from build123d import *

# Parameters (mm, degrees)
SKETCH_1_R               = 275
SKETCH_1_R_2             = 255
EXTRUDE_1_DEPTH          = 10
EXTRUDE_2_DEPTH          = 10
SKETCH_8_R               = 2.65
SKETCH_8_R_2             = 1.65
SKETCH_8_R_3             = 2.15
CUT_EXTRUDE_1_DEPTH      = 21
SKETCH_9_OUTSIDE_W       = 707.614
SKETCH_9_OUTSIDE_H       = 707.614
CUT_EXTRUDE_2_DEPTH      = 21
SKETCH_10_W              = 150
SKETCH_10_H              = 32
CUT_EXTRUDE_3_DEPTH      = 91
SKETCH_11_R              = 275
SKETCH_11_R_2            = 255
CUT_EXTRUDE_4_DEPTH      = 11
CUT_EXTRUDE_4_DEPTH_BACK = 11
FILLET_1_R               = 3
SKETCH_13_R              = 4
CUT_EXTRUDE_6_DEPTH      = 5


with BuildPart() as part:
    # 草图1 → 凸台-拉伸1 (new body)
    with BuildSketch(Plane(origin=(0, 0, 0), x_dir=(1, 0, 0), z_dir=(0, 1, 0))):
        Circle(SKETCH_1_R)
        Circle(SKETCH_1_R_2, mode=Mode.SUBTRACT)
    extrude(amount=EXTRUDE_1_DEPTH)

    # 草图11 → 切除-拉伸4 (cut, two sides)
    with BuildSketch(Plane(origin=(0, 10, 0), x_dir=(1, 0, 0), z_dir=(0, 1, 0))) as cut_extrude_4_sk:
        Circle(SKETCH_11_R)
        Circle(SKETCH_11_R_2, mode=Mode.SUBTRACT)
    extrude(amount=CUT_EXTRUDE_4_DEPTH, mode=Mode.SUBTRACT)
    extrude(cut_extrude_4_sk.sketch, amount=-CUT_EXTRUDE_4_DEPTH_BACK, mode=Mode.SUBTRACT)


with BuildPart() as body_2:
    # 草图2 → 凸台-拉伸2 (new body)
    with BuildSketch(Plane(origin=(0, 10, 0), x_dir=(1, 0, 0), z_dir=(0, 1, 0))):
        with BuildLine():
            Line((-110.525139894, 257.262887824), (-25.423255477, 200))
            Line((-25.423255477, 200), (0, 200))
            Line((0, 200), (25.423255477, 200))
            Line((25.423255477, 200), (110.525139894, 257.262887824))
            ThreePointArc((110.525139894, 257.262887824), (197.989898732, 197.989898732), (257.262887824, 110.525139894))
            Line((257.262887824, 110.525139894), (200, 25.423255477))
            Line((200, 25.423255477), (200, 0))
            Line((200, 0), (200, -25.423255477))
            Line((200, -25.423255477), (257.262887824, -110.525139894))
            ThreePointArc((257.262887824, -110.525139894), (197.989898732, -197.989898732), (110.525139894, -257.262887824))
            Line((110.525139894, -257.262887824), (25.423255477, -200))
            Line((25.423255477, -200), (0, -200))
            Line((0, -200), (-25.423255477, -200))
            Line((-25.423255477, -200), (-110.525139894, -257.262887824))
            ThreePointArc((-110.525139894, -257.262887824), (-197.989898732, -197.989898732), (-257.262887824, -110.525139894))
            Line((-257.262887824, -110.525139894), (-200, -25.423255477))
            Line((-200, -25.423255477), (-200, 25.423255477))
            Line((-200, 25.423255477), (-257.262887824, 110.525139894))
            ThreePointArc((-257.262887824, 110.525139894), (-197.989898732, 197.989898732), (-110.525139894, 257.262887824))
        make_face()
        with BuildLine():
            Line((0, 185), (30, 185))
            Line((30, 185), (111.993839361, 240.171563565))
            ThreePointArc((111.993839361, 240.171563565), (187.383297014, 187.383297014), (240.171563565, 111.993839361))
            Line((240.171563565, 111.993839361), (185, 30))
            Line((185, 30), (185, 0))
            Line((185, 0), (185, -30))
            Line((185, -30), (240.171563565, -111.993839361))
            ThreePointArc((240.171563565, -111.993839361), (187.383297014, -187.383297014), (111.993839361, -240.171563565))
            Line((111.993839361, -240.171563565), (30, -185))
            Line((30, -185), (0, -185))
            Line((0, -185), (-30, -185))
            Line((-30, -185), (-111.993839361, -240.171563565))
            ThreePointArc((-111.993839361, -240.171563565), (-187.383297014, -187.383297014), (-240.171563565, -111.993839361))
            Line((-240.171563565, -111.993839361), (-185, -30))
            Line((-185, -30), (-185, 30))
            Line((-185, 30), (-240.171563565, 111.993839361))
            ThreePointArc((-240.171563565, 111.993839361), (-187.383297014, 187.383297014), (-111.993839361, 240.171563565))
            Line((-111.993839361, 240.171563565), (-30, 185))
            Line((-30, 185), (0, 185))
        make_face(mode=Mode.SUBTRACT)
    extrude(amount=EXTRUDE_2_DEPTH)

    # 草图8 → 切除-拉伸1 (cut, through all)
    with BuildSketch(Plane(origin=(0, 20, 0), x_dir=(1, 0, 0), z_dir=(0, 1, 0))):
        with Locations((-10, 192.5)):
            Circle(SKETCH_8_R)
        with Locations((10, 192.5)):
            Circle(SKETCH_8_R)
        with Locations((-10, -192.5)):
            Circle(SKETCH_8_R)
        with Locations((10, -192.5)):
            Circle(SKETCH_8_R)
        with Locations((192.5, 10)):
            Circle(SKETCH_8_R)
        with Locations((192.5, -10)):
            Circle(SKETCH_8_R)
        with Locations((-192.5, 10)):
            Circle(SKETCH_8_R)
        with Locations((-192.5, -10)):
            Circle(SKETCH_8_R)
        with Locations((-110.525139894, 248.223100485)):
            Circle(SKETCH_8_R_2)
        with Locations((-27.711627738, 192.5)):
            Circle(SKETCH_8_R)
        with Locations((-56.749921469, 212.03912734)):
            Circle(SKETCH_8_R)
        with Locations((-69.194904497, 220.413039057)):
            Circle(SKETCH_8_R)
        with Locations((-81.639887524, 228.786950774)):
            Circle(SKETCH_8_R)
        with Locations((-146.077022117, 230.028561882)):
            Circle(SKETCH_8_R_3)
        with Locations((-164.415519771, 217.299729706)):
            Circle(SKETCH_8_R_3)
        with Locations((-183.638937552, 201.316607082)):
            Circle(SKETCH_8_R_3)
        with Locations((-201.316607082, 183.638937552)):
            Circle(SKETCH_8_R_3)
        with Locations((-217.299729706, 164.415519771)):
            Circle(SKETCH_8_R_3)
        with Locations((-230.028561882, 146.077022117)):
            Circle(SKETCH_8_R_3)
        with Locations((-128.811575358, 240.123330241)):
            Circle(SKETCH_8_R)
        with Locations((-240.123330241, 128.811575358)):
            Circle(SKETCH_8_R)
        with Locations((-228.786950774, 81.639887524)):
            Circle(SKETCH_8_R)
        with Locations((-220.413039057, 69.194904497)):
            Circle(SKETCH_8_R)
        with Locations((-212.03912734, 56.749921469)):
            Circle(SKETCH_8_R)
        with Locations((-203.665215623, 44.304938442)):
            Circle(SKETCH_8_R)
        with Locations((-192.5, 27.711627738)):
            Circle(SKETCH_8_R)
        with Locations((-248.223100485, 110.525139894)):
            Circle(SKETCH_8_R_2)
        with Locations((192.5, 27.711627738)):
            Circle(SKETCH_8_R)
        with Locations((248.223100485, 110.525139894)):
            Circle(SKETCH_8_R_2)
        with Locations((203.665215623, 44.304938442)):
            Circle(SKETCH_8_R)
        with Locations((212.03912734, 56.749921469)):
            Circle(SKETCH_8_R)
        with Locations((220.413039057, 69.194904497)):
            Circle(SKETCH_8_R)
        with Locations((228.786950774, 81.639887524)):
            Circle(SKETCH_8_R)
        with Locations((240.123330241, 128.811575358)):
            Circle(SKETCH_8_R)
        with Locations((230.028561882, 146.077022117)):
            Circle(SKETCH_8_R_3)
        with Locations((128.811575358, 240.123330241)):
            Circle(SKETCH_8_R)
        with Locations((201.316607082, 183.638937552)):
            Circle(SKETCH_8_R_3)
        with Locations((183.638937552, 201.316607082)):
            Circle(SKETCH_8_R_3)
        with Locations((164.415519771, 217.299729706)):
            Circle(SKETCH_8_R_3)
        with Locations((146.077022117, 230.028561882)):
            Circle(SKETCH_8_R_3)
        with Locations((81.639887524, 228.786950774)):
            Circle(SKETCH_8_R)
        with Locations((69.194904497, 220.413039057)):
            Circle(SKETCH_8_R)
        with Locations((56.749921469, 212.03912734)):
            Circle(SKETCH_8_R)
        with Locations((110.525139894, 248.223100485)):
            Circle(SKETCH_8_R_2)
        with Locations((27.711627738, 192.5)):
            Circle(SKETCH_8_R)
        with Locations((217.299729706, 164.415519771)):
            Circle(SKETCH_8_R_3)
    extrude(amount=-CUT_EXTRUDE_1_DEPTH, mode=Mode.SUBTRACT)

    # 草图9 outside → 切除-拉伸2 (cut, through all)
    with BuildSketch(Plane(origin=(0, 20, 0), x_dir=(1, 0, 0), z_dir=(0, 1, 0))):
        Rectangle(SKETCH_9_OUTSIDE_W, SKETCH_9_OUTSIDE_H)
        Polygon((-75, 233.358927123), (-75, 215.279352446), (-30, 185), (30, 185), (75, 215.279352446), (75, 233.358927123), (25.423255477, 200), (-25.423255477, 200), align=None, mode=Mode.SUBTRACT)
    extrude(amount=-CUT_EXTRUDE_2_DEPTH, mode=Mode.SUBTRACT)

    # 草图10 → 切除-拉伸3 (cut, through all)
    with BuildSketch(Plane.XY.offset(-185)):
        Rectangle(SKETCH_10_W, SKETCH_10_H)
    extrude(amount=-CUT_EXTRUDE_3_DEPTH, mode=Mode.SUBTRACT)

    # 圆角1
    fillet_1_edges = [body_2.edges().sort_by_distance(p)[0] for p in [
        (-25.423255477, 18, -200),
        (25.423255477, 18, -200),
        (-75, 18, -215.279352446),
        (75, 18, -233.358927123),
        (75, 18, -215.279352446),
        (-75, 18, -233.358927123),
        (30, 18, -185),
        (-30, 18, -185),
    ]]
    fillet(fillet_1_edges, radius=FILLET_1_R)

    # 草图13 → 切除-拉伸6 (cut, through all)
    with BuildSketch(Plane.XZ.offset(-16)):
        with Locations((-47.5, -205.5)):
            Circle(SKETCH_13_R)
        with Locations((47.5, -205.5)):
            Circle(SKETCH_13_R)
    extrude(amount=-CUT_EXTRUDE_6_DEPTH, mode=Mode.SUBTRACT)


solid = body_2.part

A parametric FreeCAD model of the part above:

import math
import FreeCAD as App
import Part
import Sketcher

V = App.Vector


def edges_at(feature, points):
    """Names of the edges that pass closest to the given points."""
    edges = feature.Shape.Edges
    near = lambda p: min(range(len(edges)), key=lambda i: edges[i].distToShape(Part.Vertex(*p))[0])
    return sorted({f"Edge{near(p) + 1}" for p in points})

doc = App.newDocument("Part")
body = doc.addObject("PartDesign::Body", "Body")

# Sketch on XZ plane
sketch1 = body.newObject("Sketcher::SketchObject", "Sketch")
sketch1.AttachmentSupport = (doc.getObject("XZ_Plane"), [""])
sketch1.MapMode = "FlatFace"
sketch1.addGeometry(Part.Circle(V(0, 0, 0), V(0, 0, 1), 275), False)
sketch1.addGeometry(Part.Circle(V(0, 0, 0), V(0, 0, 1), 255), False)
sketch1.addConstraint(Sketcher.Constraint("Coincident", 0, 3, -1, 1))
sketch1.addConstraint(Sketcher.Constraint("Coincident", 1, 3, -1, 1))
sketch1.addConstraint(Sketcher.Constraint("Diameter", 0, 550.0))
sketch1.addConstraint(Sketcher.Constraint("Diameter", 1, 510.0))
pad1 = body.newObject("PartDesign::Pad", "Pad")
pad1.Profile = sketch1
pad1.Length = 10
pad1.Reversed = True

# Sketch on XZ plane
sketch2 = body.newObject("Sketcher::SketchObject", "Sketch001")
sketch2.AttachmentSupport = (doc.getObject("XZ_Plane"), [""])
sketch2.MapMode = "FlatFace"
sketch2.AttachmentOffset = App.Placement(V(0, 0, -10), App.Rotation())
sketch2.addGeometry(Part.Circle(V(0, 0, 0), V(0, 0, 1), 275), False)
sketch2.addGeometry(Part.Circle(V(0, 0, 0), V(0, 0, 1), 255), False)
sketch2.addConstraint(Sketcher.Constraint("Coincident", 0, 3, -1, 1))
sketch2.addConstraint(Sketcher.Constraint("Coincident", 1, 3, -1, 1))
sketch2.addConstraint(Sketcher.Constraint("Diameter", 0, 550.0))
sketch2.addConstraint(Sketcher.Constraint("Diameter", 1, 510.0))
pocket1 = body.newObject("PartDesign::Pocket", "Pocket")
pocket1.Profile = sketch2
pocket1.Type = "ThroughAll"
pocket1.Midplane = True
body2 = doc.addObject("PartDesign::Body", "Body001")

# Sketch on XZ plane
sketch3 = body2.newObject("Sketcher::SketchObject", "Sketch002")
sketch3.AttachmentSupport = (doc.getObject("XZ_Plane001"), [""])
sketch3.MapMode = "FlatFace"
sketch3.AttachmentOffset = App.Placement(V(0, 0, -10), App.Rotation())
sketch3.addGeometry(Part.LineSegment(V(-25, -200, 0), V(-111, -257, 0)), False)
sketch3.addGeometry(Part.ArcOfCircle(Part.Circle(V(0, 0, 0), V(0, 0, 1), 280), math.radians(-157), math.radians(-113)), False)
sketch3.addGeometry(Part.LineSegment(V(-257, -111, 0), V(-200, -25, 0)), False)
sketch3.addGeometry(Part.LineSegment(V(-200, -25, 0), V(-200, 25, 0)), False)
sketch3.addGeometry(Part.LineSegment(V(-200, 25, 0), V(-257, 111, 0)), False)
sketch3.addGeometry(Part.ArcOfCircle(Part.Circle(V(0, 0, 0), V(0, 0, 1), 280), math.radians(113), math.radians(157)), False)
sketch3.addGeometry(Part.LineSegment(V(-111, 257, 0), V(-25, 200, 0)), False)
sketch3.addGeometry(Part.LineSegment(V(-25, 200, 0), V(25, 200, 0)), False)
sketch3.addGeometry(Part.LineSegment(V(25, 200, 0), V(111, 257, 0)), False)
sketch3.addGeometry(Part.ArcOfCircle(Part.Circle(V(0, 0, 0), V(0, 0, 1), 280), math.radians(23), math.radians(67)), False)
sketch3.addGeometry(Part.LineSegment(V(257, 111, 0), V(200, 25, 0)), False)
sketch3.addGeometry(Part.LineSegment(V(200, 25, 0), V(200, -25, 0)), False)
sketch3.addGeometry(Part.LineSegment(V(200, -25, 0), V(257, -111, 0)), False)
sketch3.addGeometry(Part.ArcOfCircle(Part.Circle(V(0, 0, 0), V(0, 0, 1), 280), math.radians(-67), math.radians(-23)), False)
sketch3.addGeometry(Part.LineSegment(V(111, -257, 0), V(25, -200, 0)), False)
sketch3.addGeometry(Part.LineSegment(V(25, -200, 0), V(-25, -200, 0)), False)
sketch3.addGeometry(Part.LineSegment(V(30, -185, 0), V(112, -240, 0)), False)
sketch3.addGeometry(Part.ArcOfCircle(Part.Circle(V(0, 0, 0), V(0, 0, 1), 265), math.radians(-65), math.radians(-25)), False)
sketch3.addGeometry(Part.LineSegment(V(240, -112, 0), V(185, -30, 0)), False)
sketch3.addGeometry(Part.LineSegment(V(185, -30, 0), V(185, 30, 0)), False)
sketch3.addGeometry(Part.LineSegment(V(185, 30, 0), V(240, 112, 0)), False)
sketch3.addGeometry(Part.ArcOfCircle(Part.Circle(V(0, 0, 0), V(0, 0, 1), 265), math.radians(25), math.radians(65)), False)
sketch3.addGeometry(Part.LineSegment(V(112, 240, 0), V(30, 185, 0)), False)
sketch3.addGeometry(Part.LineSegment(V(30, 185, 0), V(-30, 185, 0)), False)
sketch3.addGeometry(Part.LineSegment(V(-30, 185, 0), V(-112, 240, 0)), False)
sketch3.addGeometry(Part.ArcOfCircle(Part.Circle(V(0, 0, 0), V(0, 0, 1), 265), math.radians(115), math.radians(155)), False)
sketch3.addGeometry(Part.LineSegment(V(-240, 112, 0), V(-185, 30, 0)), False)
sketch3.addGeometry(Part.LineSegment(V(-185, 30, 0), V(-185, -30, 0)), False)
sketch3.addGeometry(Part.LineSegment(V(-185, -30, 0), V(-240, -112, 0)), False)
sketch3.addGeometry(Part.ArcOfCircle(Part.Circle(V(0, 0, 0), V(0, 0, 1), 265), math.radians(-155), math.radians(-115)), False)
sketch3.addGeometry(Part.LineSegment(V(-112, -240, 0), V(-30, -185, 0)), False)
sketch3.addGeometry(Part.LineSegment(V(-30, -185, 0), V(30, -185, 0)), False)
sketch3.addConstraint(Sketcher.Constraint("Coincident", 0, 2, 1, 2))
sketch3.addConstraint(Sketcher.Constraint("Coincident", 1, 1, 2, 1))
sketch3.addConstraint(Sketcher.Constraint("Coincident", 2, 2, 3, 1))
sketch3.addConstraint(Sketcher.Constraint("Coincident", 3, 2, 4, 1))
sketch3.addConstraint(Sketcher.Constraint("Coincident", 4, 2, 5, 2))
sketch3.addConstraint(Sketcher.Constraint("Coincident", 5, 1, 6, 1))
sketch3.addConstraint(Sketcher.Constraint("Coincident", 6, 2, 7, 1))
sketch3.addConstraint(Sketcher.Constraint("Coincident", 7, 2, 8, 1))
sketch3.addConstraint(Sketcher.Constraint("Coincident", 8, 2, 9, 2))
sketch3.addConstraint(Sketcher.Constraint("Coincident", 9, 1, 10, 1))
sketch3.addConstraint(Sketcher.Constraint("Coincident", 10, 2, 11, 1))
sketch3.addConstraint(Sketcher.Constraint("Coincident", 11, 2, 12, 1))
sketch3.addConstraint(Sketcher.Constraint("Coincident", 12, 2, 13, 2))
sketch3.addConstraint(Sketcher.Constraint("Coincident", 13, 1, 14, 1))
sketch3.addConstraint(Sketcher.Constraint("Coincident", 14, 2, 15, 1))
sketch3.addConstraint(Sketcher.Constraint("Coincident", 15, 2, 0, 1))
sketch3.addConstraint(Sketcher.Constraint("Coincident", 16, 2, 17, 1))
sketch3.addConstraint(Sketcher.Constraint("Coincident", 17, 2, 18, 1))
sketch3.addConstraint(Sketcher.Constraint("Coincident", 18, 2, 19, 1))
sketch3.addConstraint(Sketcher.Constraint("Coincident", 19, 2, 20, 1))
sketch3.addConstraint(Sketcher.Constraint("Coincident", 20, 2, 21, 1))
sketch3.addConstraint(Sketcher.Constraint("Coincident", 21, 2, 22, 1))
sketch3.addConstraint(Sketcher.Constraint("Coincident", 22, 2, 23, 1))
sketch3.addConstraint(Sketcher.Constraint("Coincident", 23, 2, 24, 1))
sketch3.addConstraint(Sketcher.Constraint("Coincident", 24, 2, 25, 1))
sketch3.addConstraint(Sketcher.Constraint("Coincident", 25, 2, 26, 1))
sketch3.addConstraint(Sketcher.Constraint("Coincident", 26, 2, 27, 1))
sketch3.addConstraint(Sketcher.Constraint("Coincident", 27, 2, 28, 1))
sketch3.addConstraint(Sketcher.Constraint("Coincident", 28, 2, 29, 1))
sketch3.addConstraint(Sketcher.Constraint("Coincident", 29, 2, 30, 1))
sketch3.addConstraint(Sketcher.Constraint("Coincident", 30, 2, 31, 1))
sketch3.addConstraint(Sketcher.Constraint("Coincident", 31, 2, 16, 1))
sketch3.addConstraint(Sketcher.Constraint("Vertical", 3))
sketch3.addConstraint(Sketcher.Constraint("Horizontal", 7))
sketch3.addConstraint(Sketcher.Constraint("Vertical", 11))
sketch3.addConstraint(Sketcher.Constraint("Horizontal", 15))
sketch3.addConstraint(Sketcher.Constraint("Vertical", 19))
sketch3.addConstraint(Sketcher.Constraint("Horizontal", 23))
sketch3.addConstraint(Sketcher.Constraint("Vertical", 27))
sketch3.addConstraint(Sketcher.Constraint("Horizontal", 31))
sketch3.addConstraint(Sketcher.Constraint("Coincident", 1, 3, -1, 1))
sketch3.addConstraint(Sketcher.Constraint("Coincident", 5, 3, -1, 1))
sketch3.addConstraint(Sketcher.Constraint("Coincident", 9, 3, -1, 1))
sketch3.addConstraint(Sketcher.Constraint("Coincident", 13, 3, -1, 1))
sketch3.addConstraint(Sketcher.Constraint("Coincident", 17, 3, -1, 1))
sketch3.addConstraint(Sketcher.Constraint("Coincident", 21, 3, -1, 1))
sketch3.addConstraint(Sketcher.Constraint("Coincident", 25, 3, -1, 1))
sketch3.addConstraint(Sketcher.Constraint("Coincident", 29, 3, -1, 1))
sketch3.addConstraint(Sketcher.Constraint("Equal", 1, 5))
sketch3.addConstraint(Sketcher.Constraint("Equal", 5, 9))
sketch3.addConstraint(Sketcher.Constraint("Equal", 9, 13))
sketch3.addConstraint(Sketcher.Constraint("Equal", 17, 21))
sketch3.addConstraint(Sketcher.Constraint("Equal", 21, 25))
sketch3.addConstraint(Sketcher.Constraint("Equal", 25, 29))
sketch3.addConstraint(Sketcher.Constraint("Symmetric", 2, 2, 10, 2, -1, 1))
sketch3.addConstraint(Sketcher.Constraint("Symmetric", 6, 2, 14, 2, -1, 1))
sketch3.addConstraint(Sketcher.Constraint("Symmetric", 18, 2, 26, 2, -1, 1))
sketch3.addConstraint(Sketcher.Constraint("Symmetric", 22, 2, 30, 2, -1, 1))
sketch3.addConstraint(Sketcher.Constraint("Perpendicular", 0, 4))
sketch3.addConstraint(Sketcher.Constraint("Perpendicular", 2, 6))
sketch3.addConstraint(Sketcher.Constraint("Perpendicular", 4, 8))
sketch3.addConstraint(Sketcher.Constraint("Perpendicular", 6, 10))
sketch3.addConstraint(Sketcher.Constraint("Perpendicular", 8, 12))
sketch3.addConstraint(Sketcher.Constraint("Perpendicular", 10, 14))
sketch3.addConstraint(Sketcher.Constraint("Parallel", 14, 16))
sketch3.addConstraint(Sketcher.Constraint("Parallel", 12, 18))
sketch3.addConstraint(Sketcher.Constraint("Perpendicular", 16, 20))
sketch3.addConstraint(Sketcher.Constraint("Perpendicular", 18, 22))
sketch3.addConstraint(Sketcher.Constraint("Perpendicular", 20, 24))
sketch3.addConstraint(Sketcher.Constraint("Perpendicular", 22, 26))
sketch3.addConstraint(Sketcher.Constraint("Perpendicular", 24, 28))
sketch3.addConstraint(Sketcher.Constraint("Perpendicular", 26, 30))
sketch3.addConstraint(Sketcher.Constraint("Horizontal", 5, 1, 8, 2))
sketch3.addConstraint(Sketcher.Constraint("Horizontal", 4, 2, 9, 1))
sketch3.addConstraint(Sketcher.Constraint("Horizontal", 3, 2, 10, 2))
sketch3.addConstraint(Sketcher.Constraint("Horizontal", 2, 2, 11, 2))
sketch3.addConstraint(Sketcher.Constraint("Horizontal", 19, 2, 26, 2))
sketch3.addConstraint(Sketcher.Constraint("Horizontal", 18, 2, 27, 2))
sketch3.addConstraint(Sketcher.Constraint("Vertical", 6, 2, 15, 2))
sketch3.addConstraint(Sketcher.Constraint("Vertical", 23, 2, 30, 2))
sketch3.addConstraint(Sketcher.Constraint("Vertical", 22, 2, 31, 2))
sketch3.addConstraint(Sketcher.Constraint("Equal", 15, 3))
sketch3.addConstraint(Sketcher.Constraint("Equal", 31, 19))
sketch3.addConstraint(Sketcher.Constraint("Equal", 0, 2))
sketch3.addConstraint(Sketcher.Constraint("Equal", 16, 18))
sketch3.addConstraint(Sketcher.Constraint("Radius", 1, 280.0))
sketch3.addConstraint(Sketcher.Constraint("Radius", 17, 265.0))
sketch3.addConstraint(Sketcher.Constraint("DistanceX", 23, 2, 23, 1, 60.0))
sketch3.addConstraint(Sketcher.Constraint("DistanceX", 2, 2, -1, 1, 200.0))
sketch3.addConstraint(Sketcher.Constraint("DistanceX", -1, 1, 18, 2, 185.0))
sketch3.addConstraint(Sketcher.Constraint("DistanceX", 7, 1, 7, 2, 50.846511))
sketch3.addConstraint(Sketcher.Constraint("DistanceX", 0, 2, -1, 1, 110.52514))
pad2 = body2.newObject("PartDesign::Pad", "Pad001")
pad2.Profile = sketch3
pad2.Length = 10
pad2.Reversed = True

# Sketch on XZ plane
sketch4 = body2.newObject("Sketcher::SketchObject", "Sketch003")
sketch4.AttachmentSupport = (doc.getObject("XZ_Plane001"), [""])
sketch4.MapMode = "FlatFace"
sketch4.AttachmentOffset = App.Placement(V(0, 0, -20), App.Rotation())
sketch4.addGeometry(Part.Circle(V(-10, -192.5, 0), V(0, 0, 1), 2.6), False)
sketch4.addGeometry(Part.Circle(V(10, -192.5, 0), V(0, 0, 1), 2.6), False)
sketch4.addGeometry(Part.Circle(V(-10, 192.5, 0), V(0, 0, 1), 2.6), False)
sketch4.addGeometry(Part.Circle(V(10, 192.5, 0), V(0, 0, 1), 2.6), False)
sketch4.addGeometry(Part.Circle(V(192.5, -10, 0), V(0, 0, 1), 2.6), False)
sketch4.addGeometry(Part.Circle(V(192.5, 10, 0), V(0, 0, 1), 2.6), False)
sketch4.addGeometry(Part.Circle(V(-192.5, -10, 0), V(0, 0, 1), 2.6), False)
sketch4.addGeometry(Part.Circle(V(-192.5, 10, 0), V(0, 0, 1), 2.6), False)
sketch4.addGeometry(Part.Circle(V(-110.5, -248.2, 0), V(0, 0, 1), 1.6), False)
sketch4.addGeometry(Part.Circle(V(-27.7, -192.5, 0), V(0, 0, 1), 2.6), False)
sketch4.addGeometry(Part.Circle(V(-56.7, -212, 0), V(0, 0, 1), 2.6), False)
sketch4.addGeometry(Part.Circle(V(-69.2, -220.4, 0), V(0, 0, 1), 2.6), False)
sketch4.addGeometry(Part.Circle(V(-81.6, -228.8, 0), V(0, 0, 1), 2.6), False)
sketch4.addGeometry(Part.Circle(V(-146.1, -230, 0), V(0, 0, 1), 2.1), False)
sketch4.addGeometry(Part.Circle(V(-164.4, -217.3, 0), V(0, 0, 1), 2.1), False)
sketch4.addGeometry(Part.Circle(V(-183.6, -201.3, 0), V(0, 0, 1), 2.1), False)
sketch4.addGeometry(Part.Circle(V(-201.3, -183.6, 0), V(0, 0, 1), 2.1), False)
sketch4.addGeometry(Part.Circle(V(-217.3, -164.4, 0), V(0, 0, 1), 2.1), False)
sketch4.addGeometry(Part.Circle(V(-230, -146.1, 0), V(0, 0, 1), 2.1), False)
sketch4.addGeometry(Part.Circle(V(-128.8, -240.1, 0), V(0, 0, 1), 2.6), False)
sketch4.addGeometry(Part.Circle(V(-240.1, -128.8, 0), V(0, 0, 1), 2.6), False)
sketch4.addGeometry(Part.Circle(V(-228.8, -81.6, 0), V(0, 0, 1), 2.6), False)
sketch4.addGeometry(Part.Circle(V(-220.4, -69.2, 0), V(0, 0, 1), 2.6), False)
sketch4.addGeometry(Part.Circle(V(-212, -56.7, 0), V(0, 0, 1), 2.6), False)
sketch4.addGeometry(Part.Circle(V(-203.7, -44.3, 0), V(0, 0, 1), 2.6), False)
sketch4.addGeometry(Part.Circle(V(-192.5, -27.7, 0), V(0, 0, 1), 2.6), False)
sketch4.addGeometry(Part.Circle(V(-248.2, -110.5, 0), V(0, 0, 1), 1.6), False)
sketch4.addGeometry(Part.Circle(V(192.5, -27.7, 0), V(0, 0, 1), 2.6), False)
sketch4.addGeometry(Part.Circle(V(248.2, -110.5, 0), V(0, 0, 1), 1.6), False)
sketch4.addGeometry(Part.Circle(V(203.7, -44.3, 0), V(0, 0, 1), 2.6), False)
sketch4.addGeometry(Part.Circle(V(212, -56.7, 0), V(0, 0, 1), 2.6), False)
sketch4.addGeometry(Part.Circle(V(220.4, -69.2, 0), V(0, 0, 1), 2.6), False)
sketch4.addGeometry(Part.Circle(V(228.8, -81.6, 0), V(0, 0, 1), 2.6), False)
sketch4.addGeometry(Part.Circle(V(240.1, -128.8, 0), V(0, 0, 1), 2.6), False)
sketch4.addGeometry(Part.Circle(V(230, -146.1, 0), V(0, 0, 1), 2.1), False)
sketch4.addGeometry(Part.Circle(V(128.8, -240.1, 0), V(0, 0, 1), 2.6), False)
sketch4.addGeometry(Part.Circle(V(201.3, -183.6, 0), V(0, 0, 1), 2.1), False)
sketch4.addGeometry(Part.Circle(V(183.6, -201.3, 0), V(0, 0, 1), 2.1), False)
sketch4.addGeometry(Part.Circle(V(164.4, -217.3, 0), V(0, 0, 1), 2.1), False)
sketch4.addGeometry(Part.Circle(V(146.1, -230, 0), V(0, 0, 1), 2.1), False)
sketch4.addGeometry(Part.Circle(V(81.6, -228.8, 0), V(0, 0, 1), 2.6), False)
sketch4.addGeometry(Part.Circle(V(69.2, -220.4, 0), V(0, 0, 1), 2.6), False)
sketch4.addGeometry(Part.Circle(V(56.7, -212, 0), V(0, 0, 1), 2.6), False)
sketch4.addGeometry(Part.Circle(V(110.5, -248.2, 0), V(0, 0, 1), 1.6), False)
sketch4.addGeometry(Part.Circle(V(27.7, -192.5, 0), V(0, 0, 1), 2.6), False)
sketch4.addGeometry(Part.Circle(V(217.3, -164.4, 0), V(0, 0, 1), 2.1), False)
sketch4.addConstraint(Sketcher.Constraint("Equal", 0, 1))
sketch4.addConstraint(Sketcher.Constraint("Equal", 1, 2))
sketch4.addConstraint(Sketcher.Constraint("Equal", 2, 3))
sketch4.addConstraint(Sketcher.Constraint("Equal", 3, 4))
sketch4.addConstraint(Sketcher.Constraint("Equal", 4, 5))
sketch4.addConstraint(Sketcher.Constraint("Equal", 5, 6))
sketch4.addConstraint(Sketcher.Constraint("Equal", 6, 7))
sketch4.addConstraint(Sketcher.Constraint("Equal", 7, 9))
sketch4.addConstraint(Sketcher.Constraint("Equal", 9, 10))
sketch4.addConstraint(Sketcher.Constraint("Equal", 10, 11))
sketch4.addConstraint(Sketcher.Constraint("Equal", 11, 12))
sketch4.addConstraint(Sketcher.Constraint("Equal", 13, 14))
sketch4.addConstraint(Sketcher.Constraint("Equal", 14, 15))
sketch4.addConstraint(Sketcher.Constraint("Equal", 15, 16))
sketch4.addConstraint(Sketcher.Constraint("Equal", 16, 17))
sketch4.addConstraint(Sketcher.Constraint("Equal", 17, 18))
sketch4.addConstraint(Sketcher.Constraint("Equal", 12, 19))
sketch4.addConstraint(Sketcher.Constraint("Equal", 19, 20))
sketch4.addConstraint(Sketcher.Constraint("Equal", 20, 21))
sketch4.addConstraint(Sketcher.Constraint("Equal", 21, 22))
sketch4.addConstraint(Sketcher.Constraint("Equal", 22, 23))
sketch4.addConstraint(Sketcher.Constraint("Equal", 23, 24))
sketch4.addConstraint(Sketcher.Constraint("Equal", 24, 25))
sketch4.addConstraint(Sketcher.Constraint("Equal", 8, 26))
sketch4.addConstraint(Sketcher.Constraint("Equal", 25, 27))
sketch4.addConstraint(Sketcher.Constraint("Equal", 26, 28))
sketch4.addConstraint(Sketcher.Constraint("Equal", 27, 29))
sketch4.addConstraint(Sketcher.Constraint("Equal", 29, 30))
sketch4.addConstraint(Sketcher.Constraint("Equal", 30, 31))
sketch4.addConstraint(Sketcher.Constraint("Equal", 31, 32))
sketch4.addConstraint(Sketcher.Constraint("Equal", 32, 33))
sketch4.addConstraint(Sketcher.Constraint("Equal", 18, 34))
sketch4.addConstraint(Sketcher.Constraint("Equal", 33, 35))
sketch4.addConstraint(Sketcher.Constraint("Equal", 34, 36))
sketch4.addConstraint(Sketcher.Constraint("Equal", 36, 37))
sketch4.addConstraint(Sketcher.Constraint("Equal", 37, 38))
sketch4.addConstraint(Sketcher.Constraint("Equal", 38, 39))
sketch4.addConstraint(Sketcher.Constraint("Equal", 35, 40))
sketch4.addConstraint(Sketcher.Constraint("Equal", 40, 41))
sketch4.addConstraint(Sketcher.Constraint("Equal", 41, 42))
sketch4.addConstraint(Sketcher.Constraint("Equal", 28, 43))
sketch4.addConstraint(Sketcher.Constraint("Equal", 42, 44))
sketch4.addConstraint(Sketcher.Constraint("Equal", 39, 45))
sketch4.addConstraint(Sketcher.Constraint("Symmetric", 1, 3, 2, 3, -1, 1))
sketch4.addConstraint(Sketcher.Constraint("Symmetric", 0, 3, 3, 3, -1, 1))
sketch4.addConstraint(Sketcher.Constraint("Symmetric", 5, 3, 6, 3, -1, 1))
sketch4.addConstraint(Sketcher.Constraint("Symmetric", 4, 3, 7, 3, -1, 1))
sketch4.addConstraint(Sketcher.Constraint("Symmetric", 0, 3, 1, 3, -2))
sketch4.addConstraint(Sketcher.Constraint("Symmetric", 4, 3, 6, 3, -2))
sketch4.addConstraint(Sketcher.Constraint("Symmetric", 25, 3, 27, 3, -2))
sketch4.addConstraint(Sketcher.Constraint("Symmetric", 26, 3, 28, 3, -2))
sketch4.addConstraint(Sketcher.Constraint("Symmetric", 24, 3, 29, 3, -2))
sketch4.addConstraint(Sketcher.Constraint("Symmetric", 23, 3, 30, 3, -2))
sketch4.addConstraint(Sketcher.Constraint("Symmetric", 22, 3, 31, 3, -2))
sketch4.addConstraint(Sketcher.Constraint("Symmetric", 21, 3, 32, 3, -2))
sketch4.addConstraint(Sketcher.Constraint("Symmetric", 20, 3, 33, 3, -2))
sketch4.addConstraint(Sketcher.Constraint("Symmetric", 18, 3, 34, 3, -2))
sketch4.addConstraint(Sketcher.Constraint("Symmetric", 19, 3, 35, 3, -2))
sketch4.addConstraint(Sketcher.Constraint("Symmetric", 16, 3, 36, 3, -2))
sketch4.addConstraint(Sketcher.Constraint("Symmetric", 15, 3, 37, 3, -2))
sketch4.addConstraint(Sketcher.Constraint("Symmetric", 14, 3, 38, 3, -2))
sketch4.addConstraint(Sketcher.Constraint("Symmetric", 13, 3, 39, 3, -2))
sketch4.addConstraint(Sketcher.Constraint("Symmetric", 12, 3, 40, 3, -2))
sketch4.addConstraint(Sketcher.Constraint("Symmetric", 11, 3, 41, 3, -2))
sketch4.addConstraint(Sketcher.Constraint("Symmetric", 10, 3, 42, 3, -2))
sketch4.addConstraint(Sketcher.Constraint("Symmetric", 8, 3, 43, 3, -2))
sketch4.addConstraint(Sketcher.Constraint("Symmetric", 9, 3, 44, 3, -2))
sketch4.addConstraint(Sketcher.Constraint("Symmetric", 17, 3, 45, 3, -2))
sketch4.addConstraint(Sketcher.Constraint("Horizontal", 1, 3, 9, 3))
sketch4.addConstraint(Sketcher.Constraint("Vertical", 7, 3, 25, 3))
sketch4.addConstraint(Sketcher.Constraint("Diameter", 0, 5.3))
sketch4.addConstraint(Sketcher.Constraint("Diameter", 8, 3.3))
sketch4.addConstraint(Sketcher.Constraint("Diameter", 13, 4.3))
sketch4.addConstraint(Sketcher.Constraint("DistanceX", 0, 3, -1, 1, 10.0))
sketch4.addConstraint(Sketcher.Constraint("DistanceY", 4, 3, -1, 1, 10.0))
sketch4.addConstraint(Sketcher.Constraint("DistanceY", 0, 3, 2, 3, 385.0))
sketch4.addConstraint(Sketcher.Constraint("DistanceX", 6, 3, 4, 3, 385.0))
sketch4.addConstraint(Sketcher.Constraint("DistanceY", 8, 3, -1, 1, 248.2231))
sketch4.addConstraint(Sketcher.Constraint("DistanceX", 26, 3, -1, 1, 248.2231))
sketch4.addConstraint(Sketcher.Constraint("DistanceX", 13, 3, 10, 3, 89.327101))
sketch4.addConstraint(Sketcher.Constraint("DistanceX", 14, 3, 10, 3, 107.665598))
sketch4.addConstraint(Sketcher.Constraint("DistanceY", 19, 3, 14, 3, 22.823601))
sketch4.addConstraint(Sketcher.Constraint("DistanceX", 20, 3, 17, 3, 22.823601))
sketch4.addConstraint(Sketcher.Constraint("DistanceY", 28, 3, 29, 3, 66.220201))
sketch4.addConstraint(Sketcher.Constraint("DistanceY", 34, 3, 30, 3, 89.327101))
sketch4.addConstraint(Sketcher.Constraint("DistanceX", 8, 3, -1, 1, 110.52514))
sketch4.addConstraint(Sketcher.Constraint("DistanceX", 10, 3, -1, 1, 56.749921))
sketch4.addConstraint(Sketcher.Constraint("DistanceY", 11, 3, -1, 1, 220.413039))
sketch4.addConstraint(Sketcher.Constraint("DistanceY", 12, 3, -1, 1, 228.786951))
sketch4.addConstraint(Sketcher.Constraint("DistanceY", 13, 3, -1, 1, 230.028562))
sketch4.addConstraint(Sketcher.Constraint("DistanceY", 14, 3, -1, 1, 217.29973))
sketch4.addConstraint(Sketcher.Constraint("DistanceX", 17, 3, -1, 1, 217.29973))
sketch4.addConstraint(Sketcher.Constraint("DistanceY", 17, 3, -1, 1, 164.41552))
sketch4.addConstraint(Sketcher.Constraint("DistanceX", 18, 3, -1, 1, 230.028562))
sketch4.addConstraint(Sketcher.Constraint("DistanceX", 21, 3, -1, 1, 228.786951))
sketch4.addConstraint(Sketcher.Constraint("DistanceX", 22, 3, -1, 1, 220.413039))
sketch4.addConstraint(Sketcher.Constraint("DistanceY", 23, 3, -1, 1, 56.749921))
sketch4.addConstraint(Sketcher.Constraint("DistanceY", 24, 3, -1, 1, 44.304938))
sketch4.addConstraint(Sketcher.Constraint("DistanceY", 11, 3, 10, 3, 8.373912))
sketch4.addConstraint(Sketcher.Constraint("DistanceX", 12, 3, 9, 3, 53.92826))
sketch4.addConstraint(Sketcher.Constraint("DistanceX", 15, 3, 12, 3, 101.99905))
sketch4.addConstraint(Sketcher.Constraint("DistanceY", 11, 3, 15, 3, 19.096432))
sketch4.addConstraint(Sketcher.Constraint("DistanceX", 16, 3, 15, 3, 17.67767))
sketch4.addConstraint(Sketcher.Constraint("DistanceY", 15, 3, 16, 3, 17.67767))
sketch4.addConstraint(Sketcher.Constraint("DistanceX", 19, 3, 11, 3, 59.616671))
sketch4.addConstraint(Sketcher.Constraint("DistanceY", 15, 3, 20, 3, 72.505032))
sketch4.addConstraint(Sketcher.Constraint("DistanceY", 20, 3, 22, 3, 59.616671))
sketch4.addConstraint(Sketcher.Constraint("DistanceX", 22, 3, 23, 3, 8.373912))
sketch4.addConstraint(Sketcher.Constraint("DistanceX", 23, 3, 24, 3, 8.373912))
sketch4.addConstraint(Sketcher.Constraint("DistanceY", 21, 3, 24, 3, 37.334949))
sketch4.addConstraint(Sketcher.Constraint("DistanceY", 24, 3, 25, 3, 16.593311))
sketch4.addConstraint(Sketcher.Constraint("DistanceX", 35, 3, 36, 3, 72.505032))
sketch4.addConstraint(Sketcher.Constraint("DistanceX", 9, 3, -1, 1, 27.711628))
pocket2 = body2.newObject("PartDesign::Pocket", "Pocket001")
pocket2.Profile = sketch4
pocket2.Type = "ThroughAll"
pocket2.Reversed = True

# Sketch on XZ plane
sketch5 = body2.newObject("Sketcher::SketchObject", "Sketch004")
sketch5.AttachmentSupport = (doc.getObject("XZ_Plane001"), [""])
sketch5.MapMode = "FlatFace"
sketch5.AttachmentOffset = App.Placement(V(0, 0, -20), App.Rotation())
sketch5.addGeometry(Part.LineSegment(V(-354, -354, 0), V(-354, 354, 0)), False)
sketch5.addGeometry(Part.LineSegment(V(-354, 354, 0), V(354, 354, 0)), False)
sketch5.addGeometry(Part.LineSegment(V(354, 354, 0), V(354, -354, 0)), False)
sketch5.addGeometry(Part.LineSegment(V(354, -354, 0), V(-354, -354, 0)), False)
sketch5.addGeometry(Part.LineSegment(V(-75, -215, 0), V(-75, -233, 0)), False)
sketch5.addGeometry(Part.LineSegment(V(-75, -233, 0), V(-25, -200, 0)), False)
sketch5.addGeometry(Part.LineSegment(V(-25, -200, 0), V(25, -200, 0)), False)
sketch5.addGeometry(Part.LineSegment(V(25, -200, 0), V(75, -233, 0)), False)
sketch5.addGeometry(Part.LineSegment(V(75, -233, 0), V(75, -215, 0)), False)
sketch5.addGeometry(Part.LineSegment(V(75, -215, 0), V(30, -185, 0)), False)
sketch5.addGeometry(Part.LineSegment(V(30, -185, 0), V(-30, -185, 0)), False)
sketch5.addGeometry(Part.LineSegment(V(-30, -185, 0), V(-75, -215, 0)), False)
sketch5.addConstraint(Sketcher.Constraint("Coincident", 0, 2, 1, 1))
sketch5.addConstraint(Sketcher.Constraint("Coincident", 1, 2, 2, 1))
sketch5.addConstraint(Sketcher.Constraint("Coincident", 2, 2, 3, 1))
sketch5.addConstraint(Sketcher.Constraint("Coincident", 3, 2, 0, 1))
sketch5.addConstraint(Sketcher.Constraint("Coincident", 4, 2, 5, 1))
sketch5.addConstraint(Sketcher.Constraint("Coincident", 5, 2, 6, 1))
sketch5.addConstraint(Sketcher.Constraint("Coincident", 6, 2, 7, 1))
sketch5.addConstraint(Sketcher.Constraint("Coincident", 7, 2, 8, 1))
sketch5.addConstraint(Sketcher.Constraint("Coincident", 8, 2, 9, 1))
sketch5.addConstraint(Sketcher.Constraint("Coincident", 9, 2, 10, 1))
sketch5.addConstraint(Sketcher.Constraint("Coincident", 10, 2, 11, 1))
sketch5.addConstraint(Sketcher.Constraint("Coincident", 11, 2, 4, 1))
sketch5.addConstraint(Sketcher.Constraint("Vertical", 0))
sketch5.addConstraint(Sketcher.Constraint("Horizontal", 1))
sketch5.addConstraint(Sketcher.Constraint("Vertical", 2))
sketch5.addConstraint(Sketcher.Constraint("Horizontal", 3))
sketch5.addConstraint(Sketcher.Constraint("Vertical", 4))
sketch5.addConstraint(Sketcher.Constraint("Horizontal", 6))
sketch5.addConstraint(Sketcher.Constraint("Vertical", 8))
sketch5.addConstraint(Sketcher.Constraint("Horizontal", 10))
sketch5.addConstraint(Sketcher.Constraint("Symmetric", 0, 2, 2, 2, -1, 1))
sketch5.addConstraint(Sketcher.Constraint("Symmetric", 4, 2, 7, 2, -2))
sketch5.addConstraint(Sketcher.Constraint("Parallel", 7, 9))
sketch5.addConstraint(Sketcher.Constraint("Parallel", 5, 11))
sketch5.addConstraint(Sketcher.Constraint("Horizontal", 8, 2, 11, 2))
sketch5.addConstraint(Sketcher.Constraint("Equal", 3, 0))
sketch5.addConstraint(Sketcher.Constraint("Equal", 5, 7))
sketch5.addConstraint(Sketcher.Constraint("DistanceX", 10, 2, 10, 1, 60.0))
sketch5.addConstraint(Sketcher.Constraint("DistanceX", 4, 2, -1, 1, 75.0))
sketch5.addConstraint(Sketcher.Constraint("DistanceY", 5, 2, -1, 1, 200.0))
sketch5.addConstraint(Sketcher.Constraint("DistanceY", 9, 2, -1, 1, 185.0))
sketch5.addConstraint(Sketcher.Constraint("DistanceX", 1, 1, 1, 2, 707.614))
sketch5.addConstraint(Sketcher.Constraint("DistanceX", 6, 1, 6, 2, 50.846511))
sketch5.addConstraint(Sketcher.Constraint("DistanceY", 4, 2, 4, 1, 18.079575))
pocket3 = body2.newObject("PartDesign::Pocket", "Pocket002")
pocket3.Profile = sketch5
pocket3.Type = "ThroughAll"
pocket3.Reversed = True

# Sketch on XY plane
sketch6 = body2.newObject("Sketcher::SketchObject", "Sketch005")
sketch6.AttachmentSupport = (doc.getObject("XY_Plane001"), [""])
sketch6.MapMode = "FlatFace"
sketch6.AttachmentOffset = App.Placement(V(0, 0, -185), App.Rotation())
sketch6.addGeometry(Part.LineSegment(V(-75, 16, 0), V(-75, -16, 0)), False)
sketch6.addGeometry(Part.LineSegment(V(-75, -16, 0), V(75, -16, 0)), False)
sketch6.addGeometry(Part.LineSegment(V(75, -16, 0), V(75, 16, 0)), False)
sketch6.addGeometry(Part.LineSegment(V(75, 16, 0), V(-75, 16, 0)), False)
sketch6.addConstraint(Sketcher.Constraint("Coincident", 0, 2, 1, 1))
sketch6.addConstraint(Sketcher.Constraint("Coincident", 1, 2, 2, 1))
sketch6.addConstraint(Sketcher.Constraint("Coincident", 2, 2, 3, 1))
sketch6.addConstraint(Sketcher.Constraint("Coincident", 3, 2, 0, 1))
sketch6.addConstraint(Sketcher.Constraint("Vertical", 0))
sketch6.addConstraint(Sketcher.Constraint("Horizontal", 1))
sketch6.addConstraint(Sketcher.Constraint("Vertical", 2))
sketch6.addConstraint(Sketcher.Constraint("Horizontal", 3))
sketch6.addConstraint(Sketcher.Constraint("Symmetric", 0, 2, 2, 2, -1, 1))
sketch6.addConstraint(Sketcher.Constraint("DistanceX", 1, 1, 1, 2, 150.0))
sketch6.addConstraint(Sketcher.Constraint("DistanceY", 0, 2, 0, 1, 32.0))
pocket4 = body2.newObject("PartDesign::Pocket", "Pocket003")
pocket4.Profile = sketch6
pocket4.Type = "ThroughAll"
doc.recompute()

fillet = body2.newObject("PartDesign::Fillet", "Fillet")
fillet.Base = (pocket4, edges_at(pocket4, [
    (-25.423, 18, -200),
    (25.423, 18, -200),
    (-75, 18, -215.279),
    (75, 18, -233.359),
    (75, 18, -215.279),
    (-75, 18, -233.359),
    (30, 18, -185),
    (-30, 18, -185),
]))
fillet.Radius = 3

# Sketch on XZ plane
sketch7 = body2.newObject("Sketcher::SketchObject", "Sketch006")
sketch7.AttachmentSupport = (doc.getObject("XZ_Plane001"), [""])
sketch7.MapMode = "FlatFace"
sketch7.AttachmentOffset = App.Placement(V(0, 0, -16), App.Rotation())
sketch7.addGeometry(Part.Circle(V(-47.5, -205.5, 0), V(0, 0, 1), 4), False)
sketch7.addGeometry(Part.Circle(V(47.5, -205.5, 0), V(0, 0, 1), 4), False)
sketch7.addConstraint(Sketcher.Constraint("Equal", 0, 1))
sketch7.addConstraint(Sketcher.Constraint("Symmetric", 0, 3, 1, 3, -2))
sketch7.addConstraint(Sketcher.Constraint("Diameter", 0, 8.0))
sketch7.addConstraint(Sketcher.Constraint("DistanceX", 0, 3, 1, 3, 95.0))
sketch7.addConstraint(Sketcher.Constraint("DistanceY", 0, 3, -1, 1, 205.5))
pocket5 = body2.newObject("PartDesign::Pocket", "Pocket004")
pocket5.Profile = sketch7
pocket5.Type = "ThroughAll"

doc.recompute()
